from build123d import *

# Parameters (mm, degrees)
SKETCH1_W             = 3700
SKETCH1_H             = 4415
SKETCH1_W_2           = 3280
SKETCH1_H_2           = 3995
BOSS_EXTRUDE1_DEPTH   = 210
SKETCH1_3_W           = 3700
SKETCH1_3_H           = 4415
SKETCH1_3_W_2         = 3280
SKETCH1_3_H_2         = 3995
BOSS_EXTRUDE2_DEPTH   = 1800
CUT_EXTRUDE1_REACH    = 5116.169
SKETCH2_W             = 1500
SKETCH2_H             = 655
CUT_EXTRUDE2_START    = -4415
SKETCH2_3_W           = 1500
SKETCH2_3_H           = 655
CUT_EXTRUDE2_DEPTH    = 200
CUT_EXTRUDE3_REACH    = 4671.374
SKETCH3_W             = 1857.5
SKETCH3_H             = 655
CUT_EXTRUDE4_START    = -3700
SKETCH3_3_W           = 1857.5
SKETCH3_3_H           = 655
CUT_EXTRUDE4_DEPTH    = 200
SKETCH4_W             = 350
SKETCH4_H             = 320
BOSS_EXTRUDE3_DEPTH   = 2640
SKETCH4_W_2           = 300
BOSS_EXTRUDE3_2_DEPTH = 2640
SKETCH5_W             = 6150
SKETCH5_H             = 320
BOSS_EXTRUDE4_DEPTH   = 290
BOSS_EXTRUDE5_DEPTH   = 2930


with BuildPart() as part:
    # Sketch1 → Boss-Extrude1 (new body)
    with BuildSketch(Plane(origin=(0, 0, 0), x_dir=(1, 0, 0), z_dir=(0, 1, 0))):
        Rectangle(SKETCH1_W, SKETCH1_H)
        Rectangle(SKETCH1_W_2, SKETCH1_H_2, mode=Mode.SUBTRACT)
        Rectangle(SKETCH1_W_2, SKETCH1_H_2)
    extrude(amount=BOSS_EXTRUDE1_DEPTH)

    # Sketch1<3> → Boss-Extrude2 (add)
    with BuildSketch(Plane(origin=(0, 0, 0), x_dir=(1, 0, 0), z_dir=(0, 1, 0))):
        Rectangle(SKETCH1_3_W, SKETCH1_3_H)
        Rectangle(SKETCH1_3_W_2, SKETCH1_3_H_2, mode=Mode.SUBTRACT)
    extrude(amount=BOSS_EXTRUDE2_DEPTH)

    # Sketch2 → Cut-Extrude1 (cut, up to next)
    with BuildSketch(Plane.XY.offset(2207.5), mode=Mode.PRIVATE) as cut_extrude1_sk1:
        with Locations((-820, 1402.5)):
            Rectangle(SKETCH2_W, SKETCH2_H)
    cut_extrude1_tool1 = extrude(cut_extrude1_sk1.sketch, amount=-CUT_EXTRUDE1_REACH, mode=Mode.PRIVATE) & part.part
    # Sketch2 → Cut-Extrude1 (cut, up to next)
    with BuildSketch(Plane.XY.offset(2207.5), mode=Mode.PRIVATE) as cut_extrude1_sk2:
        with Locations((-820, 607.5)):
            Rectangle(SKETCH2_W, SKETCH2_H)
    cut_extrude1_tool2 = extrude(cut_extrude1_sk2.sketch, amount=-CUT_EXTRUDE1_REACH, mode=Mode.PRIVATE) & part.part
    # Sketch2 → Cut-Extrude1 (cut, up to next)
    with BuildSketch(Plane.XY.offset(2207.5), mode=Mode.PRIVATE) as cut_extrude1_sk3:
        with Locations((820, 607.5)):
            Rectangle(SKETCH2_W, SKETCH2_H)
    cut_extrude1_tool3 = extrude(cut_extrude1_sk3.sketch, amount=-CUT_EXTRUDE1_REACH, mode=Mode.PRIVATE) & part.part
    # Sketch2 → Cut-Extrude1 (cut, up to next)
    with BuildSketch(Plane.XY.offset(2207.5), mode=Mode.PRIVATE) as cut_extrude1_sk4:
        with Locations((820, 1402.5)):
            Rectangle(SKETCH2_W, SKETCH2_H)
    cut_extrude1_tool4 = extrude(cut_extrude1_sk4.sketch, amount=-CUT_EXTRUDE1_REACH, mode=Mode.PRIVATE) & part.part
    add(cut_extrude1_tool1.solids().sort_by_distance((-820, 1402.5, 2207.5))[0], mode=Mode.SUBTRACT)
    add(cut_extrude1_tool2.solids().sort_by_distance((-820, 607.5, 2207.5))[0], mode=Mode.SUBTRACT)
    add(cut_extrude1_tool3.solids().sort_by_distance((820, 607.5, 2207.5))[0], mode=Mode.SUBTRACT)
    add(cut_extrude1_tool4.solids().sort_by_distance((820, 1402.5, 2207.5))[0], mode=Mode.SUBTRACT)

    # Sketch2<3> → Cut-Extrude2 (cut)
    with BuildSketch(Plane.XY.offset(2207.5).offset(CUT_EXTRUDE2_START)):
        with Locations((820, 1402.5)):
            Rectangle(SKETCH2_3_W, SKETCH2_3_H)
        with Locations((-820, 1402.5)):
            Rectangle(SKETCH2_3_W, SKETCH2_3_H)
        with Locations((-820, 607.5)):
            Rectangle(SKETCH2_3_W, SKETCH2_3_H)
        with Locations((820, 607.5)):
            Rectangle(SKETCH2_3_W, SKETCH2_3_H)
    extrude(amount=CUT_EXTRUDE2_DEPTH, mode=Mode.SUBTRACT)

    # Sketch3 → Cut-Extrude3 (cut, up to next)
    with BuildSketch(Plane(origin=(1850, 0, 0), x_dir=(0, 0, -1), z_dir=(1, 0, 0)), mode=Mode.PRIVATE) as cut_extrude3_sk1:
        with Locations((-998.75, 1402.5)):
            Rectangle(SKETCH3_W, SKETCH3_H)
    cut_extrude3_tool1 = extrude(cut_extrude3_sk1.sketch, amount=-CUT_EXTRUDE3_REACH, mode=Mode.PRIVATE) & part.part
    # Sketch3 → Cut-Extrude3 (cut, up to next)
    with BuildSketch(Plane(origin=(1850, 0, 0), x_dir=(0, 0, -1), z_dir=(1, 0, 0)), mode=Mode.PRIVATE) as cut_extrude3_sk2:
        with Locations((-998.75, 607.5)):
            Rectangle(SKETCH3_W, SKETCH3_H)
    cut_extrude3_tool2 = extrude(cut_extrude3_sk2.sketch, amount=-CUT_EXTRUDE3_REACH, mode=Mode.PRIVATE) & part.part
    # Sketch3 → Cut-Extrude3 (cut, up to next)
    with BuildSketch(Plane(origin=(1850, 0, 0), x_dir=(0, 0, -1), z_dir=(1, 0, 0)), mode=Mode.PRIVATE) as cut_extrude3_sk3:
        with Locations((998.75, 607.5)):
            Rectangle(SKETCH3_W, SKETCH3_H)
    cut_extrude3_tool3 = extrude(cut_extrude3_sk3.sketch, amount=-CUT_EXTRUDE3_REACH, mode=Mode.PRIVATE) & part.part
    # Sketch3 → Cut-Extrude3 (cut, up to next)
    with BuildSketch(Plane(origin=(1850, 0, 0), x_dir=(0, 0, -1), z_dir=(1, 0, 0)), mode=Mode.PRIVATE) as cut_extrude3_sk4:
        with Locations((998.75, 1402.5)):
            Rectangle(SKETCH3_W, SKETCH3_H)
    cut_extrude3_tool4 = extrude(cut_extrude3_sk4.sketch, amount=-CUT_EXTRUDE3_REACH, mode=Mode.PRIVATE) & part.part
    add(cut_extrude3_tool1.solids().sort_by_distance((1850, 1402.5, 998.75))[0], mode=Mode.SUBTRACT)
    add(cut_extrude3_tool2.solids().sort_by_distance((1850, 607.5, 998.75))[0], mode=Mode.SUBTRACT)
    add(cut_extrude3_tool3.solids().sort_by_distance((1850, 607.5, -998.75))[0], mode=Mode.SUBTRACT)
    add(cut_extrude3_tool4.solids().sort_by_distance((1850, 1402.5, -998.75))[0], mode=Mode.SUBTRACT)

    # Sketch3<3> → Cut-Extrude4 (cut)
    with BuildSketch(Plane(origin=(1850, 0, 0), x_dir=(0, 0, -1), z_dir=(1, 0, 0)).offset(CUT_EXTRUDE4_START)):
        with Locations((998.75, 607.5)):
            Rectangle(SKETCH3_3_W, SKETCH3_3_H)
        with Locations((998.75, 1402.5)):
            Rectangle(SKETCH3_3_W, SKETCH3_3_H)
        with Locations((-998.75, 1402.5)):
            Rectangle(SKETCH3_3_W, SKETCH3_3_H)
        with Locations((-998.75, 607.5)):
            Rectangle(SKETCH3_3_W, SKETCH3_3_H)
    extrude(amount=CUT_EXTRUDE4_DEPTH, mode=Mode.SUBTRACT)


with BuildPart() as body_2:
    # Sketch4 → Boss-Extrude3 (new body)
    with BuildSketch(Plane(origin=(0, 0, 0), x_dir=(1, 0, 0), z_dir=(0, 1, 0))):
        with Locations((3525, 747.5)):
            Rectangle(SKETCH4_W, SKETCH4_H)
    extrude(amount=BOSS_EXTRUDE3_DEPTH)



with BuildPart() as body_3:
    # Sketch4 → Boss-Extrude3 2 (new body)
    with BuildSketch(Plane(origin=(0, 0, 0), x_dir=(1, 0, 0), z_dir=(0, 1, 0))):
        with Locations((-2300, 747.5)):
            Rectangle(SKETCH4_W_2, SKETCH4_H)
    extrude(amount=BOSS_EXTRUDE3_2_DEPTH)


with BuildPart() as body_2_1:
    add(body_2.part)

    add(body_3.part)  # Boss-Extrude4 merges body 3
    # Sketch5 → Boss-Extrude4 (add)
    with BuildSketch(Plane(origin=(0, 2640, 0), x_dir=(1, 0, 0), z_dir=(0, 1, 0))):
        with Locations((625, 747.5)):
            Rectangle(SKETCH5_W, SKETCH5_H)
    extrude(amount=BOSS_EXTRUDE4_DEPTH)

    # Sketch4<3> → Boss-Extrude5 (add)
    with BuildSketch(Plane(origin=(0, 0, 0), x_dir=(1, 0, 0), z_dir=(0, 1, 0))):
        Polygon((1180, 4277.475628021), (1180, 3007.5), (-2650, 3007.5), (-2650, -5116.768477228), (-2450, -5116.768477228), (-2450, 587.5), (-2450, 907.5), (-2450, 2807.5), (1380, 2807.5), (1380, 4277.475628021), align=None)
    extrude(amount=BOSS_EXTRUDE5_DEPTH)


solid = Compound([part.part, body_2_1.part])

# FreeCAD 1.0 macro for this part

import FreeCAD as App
import Part
import Sketcher
Q = App.Units.Quantity


def add_polygon(sketch, points):
    """Adds a closed chain of lines whose ends are joined by coincident constraints."""
    first, n = sketch.GeometryCount, len(points)
    for a, b in zip(points, points[1:] + points[:1]):
        sketch.addGeometry(Part.LineSegment(App.Vector(*a, 0), App.Vector(*b, 0)), False)
    for i in range(n):
        sketch.addConstraint(Sketcher.Constraint("Coincident", first + i, 2, first + (i + 1) % n, 1))

doc = App.newDocument("Part")
body = doc.addObject("PartDesign::Body", "Body")

sketch1 = body.newObject("Sketcher::SketchObject", "Sketch")
sketch1.AttachmentSupport = (doc.getObject("XZ_Plane"), [""])
sketch1.MapMode = "FlatFace"
add_polygon(sketch1, [(-1850, -2207.5), (-1850, 2207.5), (1850, 2207.5), (1850, -2207.5)])
sketch1.addConstraint([
    Sketcher.Constraint("Vertical", 0),
    Sketcher.Constraint("Horizontal", 1),
    Sketcher.Constraint("Vertical", 2),
    Sketcher.Constraint("Horizontal", 3),
    Sketcher.Constraint("Symmetric", 0, 2, 2, 2, -1, 1),
    Sketcher.Constraint("DistanceX", 1, 1, 1, 2, Q("3700 mm")),
    Sketcher.Constraint("DistanceY", 0, 1, 0, 2, Q("4415 mm")),
])
pad1 = body.newObject("PartDesign::Pad", "Pad")
pad1.Profile = sketch1
pad1.Length = 210
pad1.Reversed = True

sketch2 = body.newObject("Sketcher::SketchObject", "Sketch001")
sketch2.AttachmentSupport = (doc.getObject("XZ_Plane"), [""])
sketch2.MapMode = "FlatFace"
add_polygon(sketch2, [(-1850, -2207.5), (-1850, 2207.5), (1850, 2207.5), (1850, -2207.5)])
add_polygon(sketch2, [(1640, 1997.5), (-1640, 1997.5), (-1640, -1997.5), (1640, -1997.5)])
sketch2.addConstraint([
    Sketcher.Constraint("Vertical", 0),
    Sketcher.Constraint("Horizontal", 1),
    Sketcher.Constraint("Vertical", 2),
    Sketcher.Constraint("Horizontal", 3),
    Sketcher.Constraint("Horizontal", 4),
    Sketcher.Constraint("Vertical", 5),
    Sketcher.Constraint("Horizontal", 6),
    Sketcher.Constraint("Vertical", 7),
    Sketcher.Constraint("Symmetric", 0, 2, 2, 2, -1, 1),
    Sketcher.Constraint("Symmetric", 4, 2, 6, 2, -1, 1),
    Sketcher.Constraint("DistanceX", 1, 1, 1, 2, Q("3700 mm")),
    Sketcher.Constraint("DistanceX", 4, 2, 4, 1, Q("3280 mm")),
    Sketcher.Constraint("DistanceY", 0, 1, 0, 2, Q("4415 mm")),
    Sketcher.Constraint("DistanceY", 5, 2, 5, 1, Q("3995 mm")),
])
pad2 = body.newObject("PartDesign::Pad", "Pad001")
pad2.Profile = sketch2
pad2.Length = 1800
pad2.Reversed = True

sketch3 = body.newObject("Sketcher::SketchObject", "Sketch002")
sketch3.AttachmentSupport = (doc.getObject("XY_Plane"), [""])
sketch3.MapMode = "FlatFace"
sketch3.AttachmentOffset = App.Placement(App.Vector(0, 0, 2207.5), App.Rotation())
add_polygon(sketch3, [(-1570, 1730), (-1570, 1075), (-70, 1075), (-70, 1730)])
sketch3.addConstraint([
    Sketcher.Constraint("Vertical", 0),
    Sketcher.Constraint("Horizontal", 1),
    Sketcher.Constraint("Vertical", 2),
    Sketcher.Constraint("Horizontal", 3),
    Sketcher.Constraint("DistanceX", 1, 1, 1, 2, Q("1500 mm")),
    Sketcher.Constraint("DistanceY", 0, 2, 0, 1, Q("655 mm")),
    Sketcher.Constraint("DistanceX", 0, 2, -1, 1, Q("1570 mm")),
    Sketcher.Constraint("DistanceY", -1, 1, 0, 2, Q("1075 mm")),
])
pocket1 = body.newObject("PartDesign::Pocket", "Pocket")
pocket1.Profile = sketch3
pocket1.Type = "UpToFirst"

sketch4 = body.newObject("Sketcher::SketchObject", "Sketch003")
sketch4.AttachmentSupport = (doc.getObject("XY_Plane"), [""])
sketch4.MapMode = "FlatFace"
sketch4.AttachmentOffset = App.Placement(App.Vector(0, 0, 2207.5), App.Rotation())
add_polygon(sketch4, [(-1570, 935), (-1570, 280), (-70, 280), (-70, 935)])
sketch4.addConstraint([
    Sketcher.Constraint("Vertical", 0),
    Sketcher.Constraint("Horizontal", 1),
    Sketcher.Constraint("Vertical", 2),
    Sketcher.Constraint("Horizontal", 3),
    Sketcher.Constraint("DistanceX", 1, 1, 1, 2, Q("1500 mm")),
    Sketcher.Constraint("DistanceY", 0, 2, 0, 1, Q("655 mm")),
    Sketcher.Constraint("DistanceX", 0, 2, -1, 1, Q("1570 mm")),
    Sketcher.Constraint("DistanceY", -1, 1, 0, 2, Q("280 mm")),
])
pocket2 = body.newObject("PartDesign::Pocket", "Pocket001")
pocket2.Profile = sketch4
pocket2.Type = "UpToFirst"

sketch5 = body.newObject("Sketcher::SketchObject", "Sketch004")
sketch5.AttachmentSupport = (doc.getObject("XY_Plane"), [""])
sketch5.MapMode = "FlatFace"
sketch5.AttachmentOffset = App.Placement(App.Vector(0, 0, 2207.5), App.Rotation())
add_polygon(sketch5, [(70, 935), (70, 280), (1570, 280), (1570, 935)])
sketch5.addConstraint([
    Sketcher.Constraint("Vertical", 0),
    Sketcher.Constraint("Horizontal", 1),
    Sketcher.Constraint("Vertical", 2),
    Sketcher.Constraint("Horizontal", 3),
    Sketcher.Constraint("DistanceX", 1, 1, 1, 2, Q("1500 mm")),
    Sketcher.Constraint("DistanceY", 0, 2, 0, 1, Q("655 mm")),
    Sketcher.Constraint("DistanceX", -1, 1, 0, 2, Q("70 mm")),
    Sketcher.Constraint("DistanceY", -1, 1, 0, 2, Q("280 mm")),
])
pocket3 = body.newObject("PartDesign::Pocket", "Pocket002")
pocket3.Profile = sketch5
pocket3.Type = "UpToFirst"

sketch6 = body.newObject("Sketcher::SketchObject", "Sketch005")
sketch6.AttachmentSupport = (doc.getObject("XY_Plane"), [""])
sketch6.MapMode = "FlatFace"
sketch6.AttachmentOffset = App.Placement(App.Vector(0, 0, 2207.5), App.Rotation())
add_polygon(sketch6, [(70, 1730), (70, 1075), (1570, 1075), (1570, 1730)])
sketch6.addConstraint([
    Sketcher.Constraint("Vertical", 0),
    Sketcher.Constraint("Horizontal", 1),
    Sketcher.Constraint("Vertical", 2),
    Sketcher.Constraint("Horizontal", 3),
    Sketcher.Constraint("DistanceX", 1, 1, 1, 2, Q("1500 mm")),
    Sketcher.Constraint("DistanceY", 0, 2, 0, 1, Q("655 mm")),
    Sketcher.Constraint("DistanceX", -1, 1, 0, 2, Q("70 mm")),
    Sketcher.Constraint("DistanceY", -1, 1, 0, 2, Q("1075 mm")),
])
pocket4 = body.newObject("PartDesign::Pocket", "Pocket003")
pocket4.Profile = sketch6
pocket4.Type = "UpToFirst"

sketch7 = body.newObject("Sketcher::SketchObject", "Sketch006")
sketch7.AttachmentSupport = (doc.getObject("XY_Plane"), [""])
sketch7.MapMode = "FlatFace"
sketch7.AttachmentOffset = App.Placement(App.Vector(0, 0, -2207.5), App.Rotation())
add_polygon(sketch7, [(70, 1730), (70, 1075), (1570, 1075), (1570, 1730)])
add_polygon(sketch7, [(-1570, 1730), (-1570, 1075), (-70, 1075), (-70, 1730)])
add_polygon(sketch7, [(-1570, 935), (-1570, 280), (-70, 280), (-70, 935)])
add_polygon(sketch7, [(70, 935), (70, 280), (1570, 280), (1570, 935)])
sketch7.addConstraint([
    Sketcher.Constraint("Vertical", 0),
    Sketcher.Constraint("Horizontal", 1),
    Sketcher.Constraint("Vertical", 2),
    Sketcher.Constraint("Horizontal", 3),
    Sketcher.Constraint("Vertical", 4),
    Sketcher.Constraint("Horizontal", 5),
    Sketcher.Constraint("Vertical", 6),
    Sketcher.Constraint("Horizontal", 7),
    Sketcher.Constraint("Vertical", 8),
    Sketcher.Constraint("Horizontal", 9),
    Sketcher.Constraint("Vertical", 10),
    Sketcher.Constraint("Horizontal", 11),
    Sketcher.Constraint("Vertical", 12),
    Sketcher.Constraint("Horizontal", 13),
    Sketcher.Constraint("Vertical", 14),
    Sketcher.Constraint("Horizontal", 15),
    Sketcher.Constraint("Symmetric", 1, 2, 4, 2, -2),
    Sketcher.Constraint("Symmetric", 3, 2, 6, 2, -2),
    Sketcher.Constraint("Symmetric", 9, 2, 12, 2, -2),
    Sketcher.Constraint("Symmetric", 11, 2, 14, 2, -2),
    Sketcher.Constraint("Vertical", 7, 2, 8, 2),
    Sketcher.Constraint("Vertical", 6, 2, 9, 2),
    Sketcher.Constraint("Equal", 6, 8),
    Sketcher.Constraint("DistanceX", 1, 1, 1, 2, Q("1500 mm")),
    Sketcher.Constraint("DistanceY", 0, 2, 0, 1, Q("655 mm")),
    Sketcher.Constraint("DistanceX", -1, 1, 0, 2, Q("70 mm")),
    Sketcher.Constraint("DistanceY", -1, 1, 0, 2, Q("1075 mm")),
    Sketcher.Constraint("DistanceY", -1, 1, 8, 2, Q("280 mm")),
])
pocket5 = body.newObject("PartDesign::Pocket", "Pocket004")
pocket5.Profile = sketch7
pocket5.Length = 200
pocket5.Reversed = True

sketch8 = body.newObject("Sketcher::SketchObject", "Sketch007")
sketch8.AttachmentSupport = (doc.getObject("YZ_Plane"), [""])
sketch8.MapMode = "FlatFace"
sketch8.AttachmentOffset = App.Placement(App.Vector(0, 0, 1850), App.Rotation())
add_polygon(sketch8, [(1730, 1927.5), (1075, 1927.5), (1075, 70), (1730, 70)])
sketch8.addConstraint([
    Sketcher.Constraint("Horizontal", 0),
    Sketcher.Constraint("Vertical", 1),
    Sketcher.Constraint("Horizontal", 2),
    Sketcher.Constraint("Vertical", 3),
    Sketcher.Constraint("DistanceX", 0, 2, 0, 1, Q("655 mm")),
    Sketcher.Constraint("DistanceY", 1, 2, 1, 1, Q("1857.5 mm")),
    Sketcher.Constraint("DistanceX", -1, 1, 0, 2, Q("1075 mm")),
    Sketcher.Constraint("DistanceY", -1, 1, 1, 2, Q("70 mm")),
])
pocket6 = body.newObject("PartDesign::Pocket", "Pocket005")
pocket6.Profile = sketch8
pocket6.Type = "UpToFirst"

sketch9 = body.newObject("Sketcher::SketchObject", "Sketch008")
sketch9.AttachmentSupport = (doc.getObject("YZ_Plane"), [""])
sketch9.MapMode = "FlatFace"
sketch9.AttachmentOffset = App.Placement(App.Vector(0, 0, 1850), App.Rotation())
add_polygon(sketch9, [(935, 1927.5), (280, 1927.5), (280, 70), (935, 70)])
sketch9.addConstraint([
    Sketcher.Constraint("Horizontal", 0),
    Sketcher.Constraint("Vertical", 1),
    Sketcher.Constraint("Horizontal", 2),
    Sketcher.Constraint("Vertical", 3),
    Sketcher.Constraint("DistanceX", 0, 2, 0, 1, Q("655 mm")),
    Sketcher.Constraint("DistanceY", 1, 2, 1, 1, Q("1857.5 mm")),
    Sketcher.Constraint("DistanceX", -1, 1, 0, 2, Q("280 mm")),
    Sketcher.Constraint("DistanceY", -1, 1, 1, 2, Q("70 mm")),
])
pocket7 = body.newObject("PartDesign::Pocket", "Pocket006")
pocket7.Profile = sketch9
pocket7.Type = "UpToFirst"

sketch10 = body.newObject("Sketcher::SketchObject", "Sketch009")
sketch10.AttachmentSupport = (doc.getObject("YZ_Plane"), [""])
sketch10.MapMode = "FlatFace"
sketch10.AttachmentOffset = App.Placement(App.Vector(0, 0, 1850), App.Rotation())
add_polygon(sketch10, [(935, -70), (280, -70), (280, -1927.5), (935, -1927.5)])
sketch10.addConstraint([
    Sketcher.Constraint("Horizontal", 0),
    Sketcher.Constraint("Vertical", 1),
    Sketcher.Constraint("Horizontal", 2),
    Sketcher.Constraint("Vertical", 3),
    Sketcher.Constraint("DistanceX", 0, 2, 0, 1, Q("655 mm")),
    Sketcher.Constraint("DistanceY", 1, 2, 1, 1, Q("1857.5 mm")),
    Sketcher.Constraint("DistanceX", -1, 1, 0, 2, Q("280 mm")),
    Sketcher.Constraint("DistanceY", 0, 2, -1, 1, Q("70 mm")),
])
pocket8 = body.newObject("PartDesign::Pocket", "Pocket007")
pocket8.Profile = sketch10
pocket8.Type = "UpToFirst"

sketch11 = body.newObject("Sketcher::SketchObject", "Sketch010")
sketch11.AttachmentSupport = (doc.getObject("YZ_Plane"), [""])
sketch11.MapMode = "FlatFace"
sketch11.AttachmentOffset = App.Placement(App.Vector(0, 0, 1850), App.Rotation())
add_polygon(sketch11, [(1730, -70), (1075, -70), (1075, -1927.5), (1730, -1927.5)])
sketch11.addConstraint([
    Sketcher.Constraint("Horizontal", 0),
    Sketcher.Constraint("Vertical", 1),
    Sketcher.Constraint("Horizontal", 2),
    Sketcher.Constraint("Vertical", 3),
    Sketcher.Constraint("DistanceX", 0, 2, 0, 1, Q("655 mm")),
    Sketcher.Constraint("DistanceY", 1, 2, 1, 1, Q("1857.5 mm")),
    Sketcher.Constraint("DistanceX", -1, 1, 0, 2, Q("1075 mm")),
    Sketcher.Constraint("DistanceY", 0, 2, -1, 1, Q("70 mm")),
])
pocket9 = body.newObject("PartDesign::Pocket", "Pocket008")
pocket9.Profile = sketch11
pocket9.Type = "UpToFirst"

sketch12 = body.newObject("Sketcher::SketchObject", "Sketch011")
sketch12.AttachmentSupport = (doc.getObject("YZ_Plane"), [""])
sketch12.MapMode = "FlatFace"
sketch12.AttachmentOffset = App.Placement(App.Vector(0, 0, -1850), App.Rotation())
add_polygon(sketch12, [(935, -70), (280, -70), (280, -1927.5), (935, -1927.5)])
add_polygon(sketch12, [(1730, -70), (1075, -70), (1075, -1927.5), (1730, -1927.5)])
add_polygon(sketch12, [(1730, 1927.5), (1075, 1927.5), (1075, 70), (1730, 70)])
add_polygon(sketch12, [(935, 1927.5), (280, 1927.5), (280, 70), (935, 70)])
sketch12.addConstraint([
    Sketcher.Constraint("Horizontal", 0),
    Sketcher.Constraint("Vertical", 1),
    Sketcher.Constraint("Horizontal", 2),
    Sketcher.Constraint("Vertical", 3),
    Sketcher.Constraint("Horizontal", 4),
    Sketcher.Constraint("Vertical", 5),
    Sketcher.Constraint("Horizontal", 6),
    Sketcher.Constraint("Vertical", 7),
    Sketcher.Constraint("Horizontal", 8),
    Sketcher.Constraint("Vertical", 9),
    Sketcher.Constraint("Horizontal", 10),
    Sketcher.Constraint("Vertical", 11),
    Sketcher.Constraint("Horizontal", 12),
    Sketcher.Constraint("Vertical", 13),
    Sketcher.Constraint("Horizontal", 14),
    Sketcher.Constraint("Vertical", 15),
    Sketcher.Constraint("Symmetric", 5, 2, 8, 2, -1),
    Sketcher.Constraint("Symmetric", 7, 2, 10, 2, -1),
    Sketcher.Constraint("Symmetric", 1, 2, 12, 2, -1),
    Sketcher.Constraint("Symmetric", 3, 2, 14, 2, -1),
    Sketcher.Constraint("Horizontal", 3, 2, 4, 2),
    Sketcher.Constraint("Horizontal", 2, 2, 5, 2),
    Sketcher.Constraint("Equal", 2, 4),
    Sketcher.Constraint("DistanceX", 0, 2, 0, 1, Q("655 mm")),
    Sketcher.Constraint("DistanceY", 1, 2, 1, 1, Q("1857.5 mm")),
    Sketcher.Constraint("DistanceX", -1, 1, 0, 2, Q("280 mm")),
    Sketcher.Constraint("DistanceY", 0, 2, -1, 1, Q("70 mm")),
    Sketcher.Constraint("DistanceX", -1, 1, 4, 2, Q("1075 mm")),
])
pocket10 = body.newObject("PartDesign::Pocket", "Pocket009")
pocket10.Profile = sketch12
pocket10.Length = 200
pocket10.Reversed = True
body2 = doc.addObject("PartDesign::Body", "Body001")

sketch13 = body2.newObject("Sketcher::SketchObject", "Sketch012")
sketch13.AttachmentSupport = (doc.getObject("XZ_Plane001"), [""])
sketch13.MapMode = "FlatFace"
add_polygon(sketch13, [(3350, -907.5), (3350, -587.5), (3700, -587.5), (3700, -907.5)])
sketch13.addConstraint([
    Sketcher.Constraint("Vertical", 0),
    Sketcher.Constraint("Horizontal", 1),
    Sketcher.Constraint("Vertical", 2),
    Sketcher.Constraint("Horizontal", 3),
    Sketcher.Constraint("DistanceX", 1, 1, 1, 2, Q("350 mm")),
    Sketcher.Constraint("DistanceY", 0, 1, 0, 2, Q("320 mm")),
    Sketcher.Constraint("DistanceX", -1, 1, 0, 2, Q("3350 mm")),
    Sketcher.Constraint("DistanceY", 0, 2, -1, 1, Q("587.5 mm")),
])
pad3 = body2.newObject("PartDesign::Pad", "Pad002")
pad3.Profile = sketch13
pad3.Length = 2640
pad3.Reversed = True
body3 = doc.addObject("PartDesign::Body", "Body002")

sketch14 = body3.newObject("Sketcher::SketchObject", "Sketch013")
sketch14.AttachmentSupport = (doc.getObject("XZ_Plane002"), [""])
sketch14.MapMode = "FlatFace"
add_polygon(sketch14, [(-2450, -907.5), (-2450, -587.5), (-2150, -587.5), (-2150, -907.5)])
sketch14.addConstraint([
    Sketcher.Constraint("Vertical", 0),
    Sketcher.Constraint("Horizontal", 1),
    Sketcher.Constraint("Vertical", 2),
    Sketcher.Constraint("Horizontal", 3),
    Sketcher.Constraint("DistanceX", 1, 1, 1, 2, Q("300 mm")),
    Sketcher.Constraint("DistanceY", 0, 1, 0, 2, Q("320 mm")),
    Sketcher.Constraint("DistanceX", 0, 2, -1, 1, Q("2450 mm")),
    Sketcher.Constraint("DistanceY", 0, 2, -1, 1, Q("587.5 mm")),
])
pad4 = body3.newObject("PartDesign::Pad", "Pad003")
pad4.Profile = sketch14
pad4.Length = 2640
pad4.Reversed = True
body2.AllowCompound = True
doc.recompute()

boolean = body2.newObject("PartDesign::Boolean", "Boolean")
boolean.Type = "Fuse"
boolean.addObjects([body3])

sketch15 = body2.newObject("Sketcher::SketchObject", "Sketch014")
sketch15.AttachmentSupport = (doc.getObject("XZ_Plane001"), [""])
sketch15.MapMode = "FlatFace"
sketch15.AttachmentOffset = App.Placement(App.Vector(0, 0, -2640), App.Rotation())
add_polygon(sketch15, [(-2450, -907.5), (-2450, -587.5), (3700, -587.5), (3700, -907.5)])
sketch15.addConstraint([
    Sketcher.Constraint("Vertical", 0),
    Sketcher.Constraint("Horizontal", 1),
    Sketcher.Constraint("Vertical", 2),
    Sketcher.Constraint("Horizontal", 3),
    Sketcher.Constraint("DistanceX", 1, 1, 1, 2, Q("6150 mm")),
    Sketcher.Constraint("DistanceY", 0, 1, 0, 2, Q("320 mm")),
    Sketcher.Constraint("DistanceX", 0, 2, -1, 1, Q("2450 mm")),
    Sketcher.Constraint("DistanceY", 0, 2, -1, 1, Q("587.5 mm")),
])
pad5 = body2.newObject("PartDesign::Pad", "Pad004")
pad5.Profile = sketch15
pad5.Length = 290
pad5.Reversed = True

sketch16 = body2.newObject("Sketcher::SketchObject", "Sketch015")
sketch16.AttachmentSupport = (doc.getObject("XZ_Plane001"), [""])
sketch16.MapMode = "FlatFace"
add_polygon(sketch16, [(1180, -4277.475628), (1180, -3007.5), (-2650, -3007.5), (-2650, 5116.768477), (-2450, 5116.768477), (-2450, -2807.5), (1380, -2807.5), (1380, -4277.475628)])
sketch16.addConstraint([
    Sketcher.Constraint("Vertical", 0),
    Sketcher.Constraint("Horizontal", 1),
    Sketcher.Constraint("Vertical", 2),
    Sketcher.Constraint("Horizontal", 3),
    Sketcher.Constraint("Vertical", 4),
    Sketcher.Constraint("Horizontal", 5),
    Sketcher.Constraint("Vertical", 6),
    Sketcher.Constraint("Horizontal", 7),
    Sketcher.Constraint("Equal", 1, 5),
    Sketcher.Constraint("DistanceX", 1, 2, 1, 1, Q("3830 mm")),
    Sketcher.Constraint("DistanceX", 3, 1, 3, 2, Q("200 mm")),
    Sketcher.Constraint("DistanceX", -1, 1, 0, 2, Q("1180 mm")),
    Sketcher.Constraint("DistanceY", 1, 2, 4, 2, Q("200 mm")),
    Sketcher.Constraint("DistanceY", 0, 2, -1, 1, Q("3007.5 mm")),
    Sketcher.Constraint("DistanceY", 0, 1, 0, 2, Q("1269.975628 mm")),
    Sketcher.Constraint("DistanceY", 2, 1, 2, 2, Q("8124.268477 mm")),
])
pad6 = body2.newObject("PartDesign::Pad", "Pad005")
pad6.Profile = sketch16
pad6.Length = 2930
pad6.Reversed = True

doc.recompute()
